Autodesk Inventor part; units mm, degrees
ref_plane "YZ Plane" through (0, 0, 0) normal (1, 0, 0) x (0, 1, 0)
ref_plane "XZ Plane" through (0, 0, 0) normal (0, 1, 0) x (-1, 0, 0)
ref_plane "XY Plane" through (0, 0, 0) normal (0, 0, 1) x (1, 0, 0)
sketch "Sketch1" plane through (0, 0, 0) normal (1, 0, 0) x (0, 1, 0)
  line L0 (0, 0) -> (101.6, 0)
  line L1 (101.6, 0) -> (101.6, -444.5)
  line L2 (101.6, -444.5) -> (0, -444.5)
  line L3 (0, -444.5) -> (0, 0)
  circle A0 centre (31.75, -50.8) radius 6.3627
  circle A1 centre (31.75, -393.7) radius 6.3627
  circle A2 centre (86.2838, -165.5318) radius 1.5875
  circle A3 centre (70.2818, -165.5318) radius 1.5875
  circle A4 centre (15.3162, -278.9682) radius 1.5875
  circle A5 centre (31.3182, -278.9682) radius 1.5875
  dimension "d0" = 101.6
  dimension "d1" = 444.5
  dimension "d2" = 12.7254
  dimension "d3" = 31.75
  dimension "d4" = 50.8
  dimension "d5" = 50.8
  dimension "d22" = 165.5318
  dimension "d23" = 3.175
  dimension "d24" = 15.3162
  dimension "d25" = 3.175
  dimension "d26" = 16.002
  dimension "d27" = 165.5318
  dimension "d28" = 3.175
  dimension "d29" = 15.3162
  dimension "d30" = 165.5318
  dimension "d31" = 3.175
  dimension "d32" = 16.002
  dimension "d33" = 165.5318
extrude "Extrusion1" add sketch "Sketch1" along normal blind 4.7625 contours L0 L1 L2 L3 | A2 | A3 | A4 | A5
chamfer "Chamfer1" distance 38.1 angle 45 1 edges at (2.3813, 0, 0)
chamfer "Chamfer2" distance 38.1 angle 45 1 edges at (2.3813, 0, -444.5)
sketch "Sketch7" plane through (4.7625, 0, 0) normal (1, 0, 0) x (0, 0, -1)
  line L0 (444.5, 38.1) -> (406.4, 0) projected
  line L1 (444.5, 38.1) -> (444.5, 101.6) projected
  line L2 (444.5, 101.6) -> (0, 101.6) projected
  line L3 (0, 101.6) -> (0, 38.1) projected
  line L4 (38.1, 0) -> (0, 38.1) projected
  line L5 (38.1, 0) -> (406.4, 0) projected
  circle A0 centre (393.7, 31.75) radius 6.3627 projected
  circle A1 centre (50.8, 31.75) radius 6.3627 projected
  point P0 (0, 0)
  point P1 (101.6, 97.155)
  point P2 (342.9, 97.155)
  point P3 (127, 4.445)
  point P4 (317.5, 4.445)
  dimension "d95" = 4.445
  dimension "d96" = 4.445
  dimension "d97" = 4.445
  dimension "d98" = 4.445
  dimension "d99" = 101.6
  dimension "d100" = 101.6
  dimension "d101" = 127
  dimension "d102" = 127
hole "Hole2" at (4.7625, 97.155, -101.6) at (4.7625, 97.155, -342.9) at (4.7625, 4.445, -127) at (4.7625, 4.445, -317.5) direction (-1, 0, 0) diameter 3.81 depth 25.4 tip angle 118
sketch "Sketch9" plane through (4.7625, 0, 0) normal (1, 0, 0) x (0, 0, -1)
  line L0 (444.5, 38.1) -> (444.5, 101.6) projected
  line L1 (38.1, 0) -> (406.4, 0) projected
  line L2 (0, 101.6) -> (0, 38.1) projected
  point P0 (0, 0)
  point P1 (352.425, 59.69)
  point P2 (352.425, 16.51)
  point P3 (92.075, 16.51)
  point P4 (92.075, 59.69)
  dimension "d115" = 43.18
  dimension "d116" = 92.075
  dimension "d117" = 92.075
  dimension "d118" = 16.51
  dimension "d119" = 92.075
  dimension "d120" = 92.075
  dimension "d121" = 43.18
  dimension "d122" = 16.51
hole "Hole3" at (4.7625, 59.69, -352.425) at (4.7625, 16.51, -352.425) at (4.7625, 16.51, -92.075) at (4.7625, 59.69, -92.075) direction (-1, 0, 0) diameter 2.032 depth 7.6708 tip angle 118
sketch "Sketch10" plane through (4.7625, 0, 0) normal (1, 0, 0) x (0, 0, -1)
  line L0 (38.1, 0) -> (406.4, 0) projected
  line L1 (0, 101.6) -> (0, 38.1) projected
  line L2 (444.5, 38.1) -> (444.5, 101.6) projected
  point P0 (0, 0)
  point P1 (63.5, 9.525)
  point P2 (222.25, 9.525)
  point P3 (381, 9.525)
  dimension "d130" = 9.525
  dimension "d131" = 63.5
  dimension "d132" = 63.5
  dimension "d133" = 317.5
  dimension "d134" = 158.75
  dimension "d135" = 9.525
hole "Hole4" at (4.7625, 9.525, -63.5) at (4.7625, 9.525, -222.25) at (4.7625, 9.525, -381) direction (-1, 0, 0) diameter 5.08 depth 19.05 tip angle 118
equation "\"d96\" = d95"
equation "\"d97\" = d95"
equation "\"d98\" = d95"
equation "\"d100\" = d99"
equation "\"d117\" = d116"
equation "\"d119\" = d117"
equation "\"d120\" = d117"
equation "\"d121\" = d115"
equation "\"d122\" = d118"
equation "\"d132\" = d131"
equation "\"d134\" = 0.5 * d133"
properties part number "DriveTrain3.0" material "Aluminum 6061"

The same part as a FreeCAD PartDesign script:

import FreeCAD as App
import Part
import Sketcher
Q = App.Units.Quantity


def edges_at(feature, points):
    """Names of the edges that pass closest to the given points."""
    edges = feature.Shape.Edges
    near = lambda p: min(range(len(edges)), key=lambda i: edges[i].distToShape(Part.Vertex(*p))[0])
    return sorted({f"Edge{near(p) + 1}" for p in points})

doc = App.newDocument("Part")
body = doc.addObject("PartDesign::Body", "Body")

sketch1 = body.newObject("Sketcher::SketchObject", "Sketch")
sketch1.AttachmentSupport = (doc.getObject("YZ_Plane"), [""])
sketch1.MapMode = "FlatFace"
sketch1.addGeometry([
    Part.LineSegment(App.Vector(101.6, 0, 0), App.Vector(0, 0, 0)),
    Part.LineSegment(App.Vector(0, 0, 0), App.Vector(0, -444.5, 0)),
    Part.LineSegment(App.Vector(0, -444.5, 0), App.Vector(101.6, -444.5, 0)),
    Part.LineSegment(App.Vector(101.6, -444.5, 0), App.Vector(101.6, 0, 0)),
    Part.Circle(App.Vector(31.75, -393.7, 0), App.Vector(0, 0, 1), 6.3627),
    Part.Circle(App.Vector(31.75, -50.8, 0), App.Vector(0, 0, 1), 6.3627),
], False)
sketch1.addConstraint([
    Sketcher.Constraint("Coincident", 0, 2, 1, 1),
    Sketcher.Constraint("Coincident", 1, 2, 2, 1),
    Sketcher.Constraint("Coincident", 2, 2, 3, 1),
    Sketcher.Constraint("Coincident", 3, 2, 0, 1),
    Sketcher.Constraint("Horizontal", 0),
    Sketcher.Constraint("Vertical", 1),
    Sketcher.Constraint("Horizontal", 2),
    Sketcher.Constraint("Vertical", 3),
    Sketcher.Constraint("Coincident", 0, 2, -1, 1),
    Sketcher.Constraint("Equal", 4, 5),
    Sketcher.Constraint("Vertical", 4, 3, 5, 3),
    Sketcher.Constraint("DistanceX", 0, 2, 0, 1, Q("4 in")),
    Sketcher.Constraint("Diameter", 4, Q("0.501 in")),
    Sketcher.Constraint("DistanceY", 1, 2, 1, 1, Q("17.5 in")),
    Sketcher.Constraint("DistanceY", 5, 3, -1, 1, Q("2 in")),
    Sketcher.Constraint("DistanceY", 1, 2, 4, 3, Q("2 in")),
    Sketcher.Constraint("DistanceX", -1, 1, 4, 3, Q("1.25 in")),
])
pad1 = body.newObject("PartDesign::Pad", "Pad")
pad1.Profile = sketch1
pad1.Length = Q("0.1875 in")
doc.recompute()

chamfer = body.newObject("PartDesign::Chamfer", "Chamfer")
chamfer.Base = (pad1, edges_at(pad1, [(2.381, 0, 0)]))
chamfer.Size = Q("1.5 in")
doc.recompute()

chamfer2 = body.newObject("PartDesign::Chamfer", "Chamfer001")
chamfer2.Base = (chamfer, edges_at(chamfer, [(2.381, 0, -444.5)]))
chamfer2.Size = Q("1.5 in")

sketch2 = body.newObject("Sketcher::SketchObject", "Sketch001")
sketch2.AttachmentSupport = (doc.getObject("YZ_Plane"), [""])
sketch2.MapMode = "FlatFace"
sketch2.AttachmentOffset = App.Placement(App.Vector(0, 0, 0.1875 * 25.4), App.Rotation())
sketch2.addGeometry([
    Part.Circle(App.Vector(97.155, -101.6, 0), App.Vector(0, 0, 1), 1.905),
    Part.Circle(App.Vector(97.155, -342.9, 0), App.Vector(0, 0, 1), 1.905),
    Part.Circle(App.Vector(4.445, -127, 0), App.Vector(0, 0, 1), 1.905),
    Part.Circle(App.Vector(4.445, -317.5, 0), App.Vector(0, 0, 1), 1.905),
], False)
sketch2.addConstraint([
    Sketcher.Constraint("Equal", 0, 1),
    Sketcher.Constraint("Equal", 1, 2),
    Sketcher.Constraint("Equal", 2, 3),
    Sketcher.Constraint("Vertical", 0, 3, 1, 3),
    Sketcher.Constraint("Vertical", 2, 3, 3, 3),
    Sketcher.Constraint("Diameter", 0, Q("0.15 in")),
    Sketcher.Constraint("DistanceY", 0, 3, -1, 1, Q("4 in")),
    Sketcher.Constraint("DistanceY", 2, 3, -1, 1, Q("5 in")),
    Sketcher.Constraint("DistanceY", 1, 3, 3, 3, Q("1 in")),
    Sketcher.Constraint("DistanceY", 1, 3, -1, 1, Q("13.5 in")),
    Sketcher.Constraint("DistanceX", 2, 3, 0, 3, Q("3.65 in")),
    Sketcher.Constraint("DistanceX", -1, 1, 0, 3, Q("3.825 in")),
])
doc.recompute()
hole = body.newObject("PartDesign::Hole", "Hole")
hole.Profile = sketch2
hole.ThreadType = "None"
hole.Diameter = Q("0.15 in")
hole.DepthType = "Dimension"
hole.Depth = Q("1 in")
hole.DrillPoint = "Angled"
hole.DrillPointAngle = 118

sketch3 = body.newObject("Sketcher::SketchObject", "Sketch002")
sketch3.AttachmentSupport = (doc.getObject("YZ_Plane"), [""])
sketch3.MapMode = "FlatFace"
sketch3.AttachmentOffset = App.Placement(App.Vector(0, 0, 0.1875 * 25.4), App.Rotation())
sketch3.addGeometry([
    Part.Circle(App.Vector(59.69, -352.425, 0), App.Vector(0, 0, 1), 1.016),
    Part.Circle(App.Vector(16.51, -352.425, 0), App.Vector(0, 0, 1), 1.016),
    Part.Circle(App.Vector(16.51, -92.075, 0), App.Vector(0, 0, 1), 1.016),
    Part.Circle(App.Vector(59.69, -92.075, 0), App.Vector(0, 0, 1), 1.016),
], False)
sketch3.addConstraint([
    Sketcher.Constraint("Equal", 0, 1),
    Sketcher.Constraint("Equal", 1, 2),
    Sketcher.Constraint("Equal", 2, 3),
    Sketcher.Constraint("Horizontal", 0, 3, 1, 3),
    Sketcher.Constraint("Horizontal", 2, 3, 3, 3),
    Sketcher.Constraint("Vertical", 1, 3, 2, 3),
    Sketcher.Constraint("Vertical", 0, 3, 3, 3),
    Sketcher.Constraint("Diameter", 0, Q("0.08 in")),
    Sketcher.Constraint("DistanceX", 1, 3, 0, 3, Q("1.7 in")),
    Sketcher.Constraint("DistanceX", -1, 1, 0, 3, Q("2.35 in")),
    Sketcher.Constraint("DistanceY", 1, 3, 2, 3, Q("10.25 in")),
    Sketcher.Constraint("DistanceY", 0, 3, -1, 1, Q("13.875 in")),
])
doc.recompute()
hole2 = body.newObject("PartDesign::Hole", "Hole001")
hole2.Profile = sketch3
hole2.ThreadType = "None"
hole2.Diameter = Q("0.08 in")
hole2.DepthType = "Dimension"
hole2.Depth = Q("0.302 in")
hole2.DrillPoint = "Angled"
hole2.DrillPointAngle = 118

sketch4 = body.newObject("Sketcher::SketchObject", "Sketch003")
sketch4.AttachmentSupport = (doc.getObject("YZ_Plane"), [""])
sketch4.MapMode = "FlatFace"
sketch4.AttachmentOffset = App.Placement(App.Vector(0, 0, 0.1875 * 25.4), App.Rotation())
sketch4.addGeometry([
    Part.Circle(App.Vector(9.525, -63.5, 0), App.Vector(0, 0, 1), 2.54),
    Part.Circle(App.Vector(9.525, -222.25, 0), App.Vector(0, 0, 1), 2.54),
    Part.Circle(App.Vector(9.525, -381, 0), App.Vector(0, 0, 1), 2.54),
], False)
sketch4.addConstraint([
    Sketcher.Constraint("Equal", 0, 1),
    Sketcher.Constraint("Equal", 1, 2),
    Sketcher.Constraint("Vertical", 0, 3, 1, 3),
    Sketcher.Constraint("Vertical", 1, 3, 2, 3),
    Sketcher.Constraint("Diameter", 0, Q("0.2 in")),
    Sketcher.Constraint("DistanceY", 2, 3, -1, 1, Q("15 in")),
    Sketcher.Constraint("DistanceY", 0, 3, -1, 1, Q("2.5 in")),
    Sketcher.Constraint("DistanceY", 1, 3, -1, 1, Q("8.75 in")),
    Sketcher.Constraint("DistanceX", -1, 1, 0, 3, Q("0.375 in")),
])
doc.recompute()
hole3 = body.newObject("PartDesign::Hole", "Hole002")
hole3.Profile = sketch4
hole3.ThreadType = "None"
hole3.Diameter = Q("0.2 in")
hole3.DepthType = "Dimension"
hole3.Depth = Q("0.75 in")
hole3.DrillPoint = "Angled"
hole3.DrillPointAngle = 118

doc.recompute()
